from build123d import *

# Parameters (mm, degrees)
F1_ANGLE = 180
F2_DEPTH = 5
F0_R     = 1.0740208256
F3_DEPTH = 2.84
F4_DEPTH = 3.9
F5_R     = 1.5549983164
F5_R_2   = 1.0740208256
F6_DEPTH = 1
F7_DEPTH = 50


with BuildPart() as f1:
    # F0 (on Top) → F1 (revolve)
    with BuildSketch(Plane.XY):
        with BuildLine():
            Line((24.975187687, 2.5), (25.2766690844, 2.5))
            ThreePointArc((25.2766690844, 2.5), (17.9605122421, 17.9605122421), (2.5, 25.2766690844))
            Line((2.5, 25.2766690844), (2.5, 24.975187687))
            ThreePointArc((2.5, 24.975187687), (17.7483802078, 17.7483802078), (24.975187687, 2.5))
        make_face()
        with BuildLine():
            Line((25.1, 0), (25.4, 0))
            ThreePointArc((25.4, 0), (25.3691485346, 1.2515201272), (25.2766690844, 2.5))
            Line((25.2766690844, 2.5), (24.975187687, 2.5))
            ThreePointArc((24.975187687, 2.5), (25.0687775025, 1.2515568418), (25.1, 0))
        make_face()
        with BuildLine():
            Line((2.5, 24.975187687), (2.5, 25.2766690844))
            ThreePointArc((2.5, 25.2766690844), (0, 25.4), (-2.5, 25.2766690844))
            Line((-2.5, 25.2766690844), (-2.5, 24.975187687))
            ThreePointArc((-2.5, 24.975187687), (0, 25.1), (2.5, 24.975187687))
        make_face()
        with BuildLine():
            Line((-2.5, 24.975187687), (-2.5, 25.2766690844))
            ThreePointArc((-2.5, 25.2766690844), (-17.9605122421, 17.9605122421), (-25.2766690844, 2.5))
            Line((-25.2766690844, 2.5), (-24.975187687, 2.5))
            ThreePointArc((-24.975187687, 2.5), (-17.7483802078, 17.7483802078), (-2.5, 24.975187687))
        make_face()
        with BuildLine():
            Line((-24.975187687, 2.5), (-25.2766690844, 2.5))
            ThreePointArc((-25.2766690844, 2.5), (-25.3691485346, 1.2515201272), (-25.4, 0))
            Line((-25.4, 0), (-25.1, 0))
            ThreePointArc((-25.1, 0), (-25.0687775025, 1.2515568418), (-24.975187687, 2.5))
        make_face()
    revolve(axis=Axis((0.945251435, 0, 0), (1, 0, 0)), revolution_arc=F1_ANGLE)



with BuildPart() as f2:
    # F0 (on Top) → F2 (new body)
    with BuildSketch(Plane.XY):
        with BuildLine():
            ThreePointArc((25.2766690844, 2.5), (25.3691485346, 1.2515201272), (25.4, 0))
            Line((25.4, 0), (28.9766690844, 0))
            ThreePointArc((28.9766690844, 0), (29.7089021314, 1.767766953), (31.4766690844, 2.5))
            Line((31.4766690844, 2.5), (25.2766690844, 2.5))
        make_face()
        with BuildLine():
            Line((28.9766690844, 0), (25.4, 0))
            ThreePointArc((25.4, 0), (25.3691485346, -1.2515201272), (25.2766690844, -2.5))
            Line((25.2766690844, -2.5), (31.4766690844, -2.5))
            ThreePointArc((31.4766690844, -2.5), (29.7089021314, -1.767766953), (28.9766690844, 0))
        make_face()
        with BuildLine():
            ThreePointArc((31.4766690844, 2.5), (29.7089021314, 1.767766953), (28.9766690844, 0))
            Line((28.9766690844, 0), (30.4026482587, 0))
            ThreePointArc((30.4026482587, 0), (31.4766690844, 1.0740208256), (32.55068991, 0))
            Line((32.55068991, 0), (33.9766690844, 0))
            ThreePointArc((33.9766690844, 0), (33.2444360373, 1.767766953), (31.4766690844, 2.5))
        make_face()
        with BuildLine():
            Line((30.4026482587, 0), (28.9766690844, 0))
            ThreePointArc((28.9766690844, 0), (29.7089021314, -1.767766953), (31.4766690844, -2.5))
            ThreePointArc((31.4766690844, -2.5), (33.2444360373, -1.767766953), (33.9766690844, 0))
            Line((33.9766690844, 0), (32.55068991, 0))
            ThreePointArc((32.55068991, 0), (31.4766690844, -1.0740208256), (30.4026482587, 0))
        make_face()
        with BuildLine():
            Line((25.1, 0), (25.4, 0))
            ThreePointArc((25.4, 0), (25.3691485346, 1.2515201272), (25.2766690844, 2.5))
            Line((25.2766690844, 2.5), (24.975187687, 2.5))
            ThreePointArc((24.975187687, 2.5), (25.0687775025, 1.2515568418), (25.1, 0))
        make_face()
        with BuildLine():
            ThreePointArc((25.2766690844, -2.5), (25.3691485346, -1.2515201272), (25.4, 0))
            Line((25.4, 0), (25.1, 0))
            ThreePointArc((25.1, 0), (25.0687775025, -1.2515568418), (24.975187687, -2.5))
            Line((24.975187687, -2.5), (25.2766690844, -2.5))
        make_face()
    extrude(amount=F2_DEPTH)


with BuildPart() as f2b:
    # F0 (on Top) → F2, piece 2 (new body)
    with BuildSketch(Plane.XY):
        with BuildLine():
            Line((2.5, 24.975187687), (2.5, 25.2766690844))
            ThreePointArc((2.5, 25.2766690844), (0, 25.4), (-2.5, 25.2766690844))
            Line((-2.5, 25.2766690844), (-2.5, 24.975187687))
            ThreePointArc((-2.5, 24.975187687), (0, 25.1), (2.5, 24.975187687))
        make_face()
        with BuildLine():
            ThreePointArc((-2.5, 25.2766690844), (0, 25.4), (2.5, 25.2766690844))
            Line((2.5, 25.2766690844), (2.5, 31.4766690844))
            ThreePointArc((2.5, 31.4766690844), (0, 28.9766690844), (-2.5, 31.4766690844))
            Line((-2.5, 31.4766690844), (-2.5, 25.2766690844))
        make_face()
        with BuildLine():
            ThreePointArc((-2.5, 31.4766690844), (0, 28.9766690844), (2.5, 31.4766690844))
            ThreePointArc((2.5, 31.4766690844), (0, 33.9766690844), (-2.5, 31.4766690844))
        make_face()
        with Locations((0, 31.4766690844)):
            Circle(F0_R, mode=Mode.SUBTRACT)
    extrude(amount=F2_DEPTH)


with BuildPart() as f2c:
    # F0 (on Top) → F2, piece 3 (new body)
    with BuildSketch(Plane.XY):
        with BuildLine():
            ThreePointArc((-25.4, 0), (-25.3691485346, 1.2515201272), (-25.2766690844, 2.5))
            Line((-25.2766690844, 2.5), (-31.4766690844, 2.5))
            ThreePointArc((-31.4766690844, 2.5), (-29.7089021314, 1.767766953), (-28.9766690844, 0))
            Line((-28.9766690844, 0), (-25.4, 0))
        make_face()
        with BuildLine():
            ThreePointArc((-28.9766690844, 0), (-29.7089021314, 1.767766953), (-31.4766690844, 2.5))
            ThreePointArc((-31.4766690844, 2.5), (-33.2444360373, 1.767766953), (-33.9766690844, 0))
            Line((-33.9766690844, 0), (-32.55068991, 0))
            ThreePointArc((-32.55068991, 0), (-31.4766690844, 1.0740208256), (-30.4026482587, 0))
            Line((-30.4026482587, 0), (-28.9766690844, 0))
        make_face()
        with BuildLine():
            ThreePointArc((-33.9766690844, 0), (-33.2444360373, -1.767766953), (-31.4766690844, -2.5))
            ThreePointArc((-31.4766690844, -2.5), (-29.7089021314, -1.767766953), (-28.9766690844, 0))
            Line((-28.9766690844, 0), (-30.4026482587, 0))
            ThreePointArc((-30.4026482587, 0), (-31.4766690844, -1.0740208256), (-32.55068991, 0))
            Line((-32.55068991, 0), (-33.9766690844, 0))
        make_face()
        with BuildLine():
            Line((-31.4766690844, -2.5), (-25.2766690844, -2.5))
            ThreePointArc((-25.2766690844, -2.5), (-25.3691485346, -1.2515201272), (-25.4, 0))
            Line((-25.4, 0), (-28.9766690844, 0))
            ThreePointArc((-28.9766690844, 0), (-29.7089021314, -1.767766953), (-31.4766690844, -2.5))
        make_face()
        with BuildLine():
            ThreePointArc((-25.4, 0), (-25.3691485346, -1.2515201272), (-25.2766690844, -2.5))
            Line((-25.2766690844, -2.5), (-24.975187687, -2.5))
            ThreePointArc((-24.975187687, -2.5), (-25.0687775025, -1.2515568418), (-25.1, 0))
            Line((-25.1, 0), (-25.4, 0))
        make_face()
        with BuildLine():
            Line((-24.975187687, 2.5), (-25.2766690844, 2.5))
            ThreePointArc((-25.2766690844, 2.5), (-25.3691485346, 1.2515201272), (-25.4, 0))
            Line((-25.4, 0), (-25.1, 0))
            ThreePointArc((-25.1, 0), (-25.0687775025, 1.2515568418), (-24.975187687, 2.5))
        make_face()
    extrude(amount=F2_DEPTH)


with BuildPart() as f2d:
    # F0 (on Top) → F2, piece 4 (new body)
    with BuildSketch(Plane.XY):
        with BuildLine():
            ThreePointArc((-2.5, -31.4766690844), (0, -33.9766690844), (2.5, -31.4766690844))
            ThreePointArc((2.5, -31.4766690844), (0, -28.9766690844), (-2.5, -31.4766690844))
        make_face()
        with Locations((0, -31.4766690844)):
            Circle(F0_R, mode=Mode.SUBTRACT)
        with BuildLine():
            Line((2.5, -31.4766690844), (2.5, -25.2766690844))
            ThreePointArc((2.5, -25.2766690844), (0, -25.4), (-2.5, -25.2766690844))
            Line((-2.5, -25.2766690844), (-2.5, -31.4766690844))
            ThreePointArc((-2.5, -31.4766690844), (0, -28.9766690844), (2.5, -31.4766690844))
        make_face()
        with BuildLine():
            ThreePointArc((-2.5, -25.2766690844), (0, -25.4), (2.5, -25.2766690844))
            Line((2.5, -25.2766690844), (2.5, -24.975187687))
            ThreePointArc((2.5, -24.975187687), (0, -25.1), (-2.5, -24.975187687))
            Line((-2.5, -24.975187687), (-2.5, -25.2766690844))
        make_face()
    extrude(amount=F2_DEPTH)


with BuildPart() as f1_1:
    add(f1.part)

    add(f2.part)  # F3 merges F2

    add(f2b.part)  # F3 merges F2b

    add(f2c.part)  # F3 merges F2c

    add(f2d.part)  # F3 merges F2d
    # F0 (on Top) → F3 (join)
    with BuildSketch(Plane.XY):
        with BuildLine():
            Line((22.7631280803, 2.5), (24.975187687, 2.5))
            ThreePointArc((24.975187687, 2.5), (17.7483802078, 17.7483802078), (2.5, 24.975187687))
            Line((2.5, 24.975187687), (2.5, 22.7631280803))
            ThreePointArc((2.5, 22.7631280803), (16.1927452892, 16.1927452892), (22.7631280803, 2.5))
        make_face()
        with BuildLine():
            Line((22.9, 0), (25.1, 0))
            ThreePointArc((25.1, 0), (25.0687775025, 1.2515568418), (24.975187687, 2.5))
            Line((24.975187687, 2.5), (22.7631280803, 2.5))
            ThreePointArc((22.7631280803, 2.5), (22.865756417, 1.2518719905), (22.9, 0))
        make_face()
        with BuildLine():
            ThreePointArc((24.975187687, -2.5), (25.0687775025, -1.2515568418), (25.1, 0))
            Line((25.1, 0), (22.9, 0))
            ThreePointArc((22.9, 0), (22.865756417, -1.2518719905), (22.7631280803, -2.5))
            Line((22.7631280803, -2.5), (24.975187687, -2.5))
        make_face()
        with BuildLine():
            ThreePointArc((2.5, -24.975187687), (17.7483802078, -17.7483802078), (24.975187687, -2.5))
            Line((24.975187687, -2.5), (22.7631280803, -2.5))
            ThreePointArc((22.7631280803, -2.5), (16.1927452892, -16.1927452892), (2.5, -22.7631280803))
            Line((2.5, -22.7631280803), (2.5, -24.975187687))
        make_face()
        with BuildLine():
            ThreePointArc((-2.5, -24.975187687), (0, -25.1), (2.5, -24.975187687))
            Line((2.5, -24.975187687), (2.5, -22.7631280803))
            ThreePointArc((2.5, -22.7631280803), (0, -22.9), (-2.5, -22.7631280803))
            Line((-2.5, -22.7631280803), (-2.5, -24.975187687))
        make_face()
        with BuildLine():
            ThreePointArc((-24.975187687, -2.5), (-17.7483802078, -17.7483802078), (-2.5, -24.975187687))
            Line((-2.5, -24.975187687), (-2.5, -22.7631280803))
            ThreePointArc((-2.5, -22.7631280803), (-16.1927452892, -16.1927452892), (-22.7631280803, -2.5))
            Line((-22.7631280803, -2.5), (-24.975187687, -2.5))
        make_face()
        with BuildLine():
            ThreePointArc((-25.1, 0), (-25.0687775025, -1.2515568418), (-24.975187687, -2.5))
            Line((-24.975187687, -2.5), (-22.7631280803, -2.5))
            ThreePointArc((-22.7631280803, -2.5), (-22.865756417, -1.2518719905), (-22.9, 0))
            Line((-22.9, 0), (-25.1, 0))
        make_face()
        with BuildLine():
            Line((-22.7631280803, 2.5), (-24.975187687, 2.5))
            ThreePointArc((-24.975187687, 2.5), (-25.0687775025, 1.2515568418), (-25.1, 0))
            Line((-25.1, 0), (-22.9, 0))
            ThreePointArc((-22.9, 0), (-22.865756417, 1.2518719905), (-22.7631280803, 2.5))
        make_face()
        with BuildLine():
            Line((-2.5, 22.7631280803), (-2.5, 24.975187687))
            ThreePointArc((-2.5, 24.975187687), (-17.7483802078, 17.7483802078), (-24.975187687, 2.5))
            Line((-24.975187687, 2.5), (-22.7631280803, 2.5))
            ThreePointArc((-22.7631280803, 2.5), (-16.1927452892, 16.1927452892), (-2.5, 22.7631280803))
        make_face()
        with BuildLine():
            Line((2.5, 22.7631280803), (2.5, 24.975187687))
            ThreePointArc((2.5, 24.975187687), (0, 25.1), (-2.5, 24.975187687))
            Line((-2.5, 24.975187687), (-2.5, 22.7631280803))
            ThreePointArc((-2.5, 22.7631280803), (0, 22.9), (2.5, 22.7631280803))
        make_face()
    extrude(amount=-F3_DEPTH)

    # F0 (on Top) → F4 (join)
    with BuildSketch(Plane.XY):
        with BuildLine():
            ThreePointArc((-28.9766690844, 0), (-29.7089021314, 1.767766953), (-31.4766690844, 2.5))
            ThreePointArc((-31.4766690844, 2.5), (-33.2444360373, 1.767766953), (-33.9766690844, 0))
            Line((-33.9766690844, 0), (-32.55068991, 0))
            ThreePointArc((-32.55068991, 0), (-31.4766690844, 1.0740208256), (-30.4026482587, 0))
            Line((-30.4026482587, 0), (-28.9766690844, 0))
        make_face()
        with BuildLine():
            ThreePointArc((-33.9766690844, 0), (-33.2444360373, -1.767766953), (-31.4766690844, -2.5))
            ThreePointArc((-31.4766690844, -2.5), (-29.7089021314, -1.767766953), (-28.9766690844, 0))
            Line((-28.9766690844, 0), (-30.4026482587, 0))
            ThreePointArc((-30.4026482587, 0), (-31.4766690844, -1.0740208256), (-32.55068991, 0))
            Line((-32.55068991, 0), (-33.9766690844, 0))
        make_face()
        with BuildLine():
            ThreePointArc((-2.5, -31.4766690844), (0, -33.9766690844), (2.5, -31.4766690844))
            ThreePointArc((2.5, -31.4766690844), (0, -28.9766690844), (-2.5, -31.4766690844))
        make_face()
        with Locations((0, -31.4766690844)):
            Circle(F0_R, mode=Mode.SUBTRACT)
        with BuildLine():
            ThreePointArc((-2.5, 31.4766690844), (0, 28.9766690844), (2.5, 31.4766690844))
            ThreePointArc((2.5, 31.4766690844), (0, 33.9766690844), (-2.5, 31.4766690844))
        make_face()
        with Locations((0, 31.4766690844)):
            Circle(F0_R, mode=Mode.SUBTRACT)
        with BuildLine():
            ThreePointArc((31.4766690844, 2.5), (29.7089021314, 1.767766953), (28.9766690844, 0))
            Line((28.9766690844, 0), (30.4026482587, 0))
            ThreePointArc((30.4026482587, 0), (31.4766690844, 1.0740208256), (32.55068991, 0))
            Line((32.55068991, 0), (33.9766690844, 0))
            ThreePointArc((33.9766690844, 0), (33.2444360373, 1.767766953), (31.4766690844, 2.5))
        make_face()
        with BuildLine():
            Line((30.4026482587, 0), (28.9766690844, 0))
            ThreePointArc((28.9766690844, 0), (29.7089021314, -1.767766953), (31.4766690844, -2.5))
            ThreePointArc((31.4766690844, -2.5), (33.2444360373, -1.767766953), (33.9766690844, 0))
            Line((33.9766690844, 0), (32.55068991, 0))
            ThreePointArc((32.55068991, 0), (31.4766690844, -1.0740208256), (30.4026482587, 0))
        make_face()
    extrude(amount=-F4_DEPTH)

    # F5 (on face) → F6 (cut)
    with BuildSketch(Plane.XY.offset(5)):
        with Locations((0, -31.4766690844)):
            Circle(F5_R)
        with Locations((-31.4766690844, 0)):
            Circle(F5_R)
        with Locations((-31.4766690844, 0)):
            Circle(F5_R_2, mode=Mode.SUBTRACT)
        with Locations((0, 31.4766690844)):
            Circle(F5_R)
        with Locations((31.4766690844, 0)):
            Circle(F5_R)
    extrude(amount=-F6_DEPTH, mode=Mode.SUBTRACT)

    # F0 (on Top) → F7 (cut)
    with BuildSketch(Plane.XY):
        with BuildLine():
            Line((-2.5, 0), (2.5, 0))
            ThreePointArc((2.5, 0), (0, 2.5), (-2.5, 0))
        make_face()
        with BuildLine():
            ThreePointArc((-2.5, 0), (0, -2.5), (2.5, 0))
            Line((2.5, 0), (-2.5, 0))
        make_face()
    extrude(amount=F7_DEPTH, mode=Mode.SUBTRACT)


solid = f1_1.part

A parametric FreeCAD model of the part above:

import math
import FreeCAD as App
import Part
import Sketcher
from FreeCAD import Vector

doc = App.newDocument("Part")
body = doc.addObject("PartDesign::Body", "Body")

# Sketch on XY plane
sketch1 = doc.addObject("Sketcher::SketchObject", "Sketch")
body.addObject(sketch1)
sketch1.AttachmentSupport = (doc.XY_Plane, [""])
sketch1.MapMode = "FlatFace"
sketch1.addGeometry([
    Part.ArcOfCircle(Part.Circle(Vector(0, 0, 0), Vector(0, 0, 1), 25.4), math.radians(6), math.radians(84)),  # 0
    Part.ArcOfCircle(Part.Circle(Vector(0, 0, 0), Vector(0, 0, 1), 25.4), math.radians(84.35), math.radians(95.65)),  # 1
    Part.ArcOfCircle(Part.Circle(Vector(0, 0, 0), Vector(0, 0, 1), 25.4), math.radians(96), math.radians(174)),  # 2
    Part.ArcOfCircle(Part.Circle(Vector(0, 0, 0), Vector(0, 0, 1), 25.4), math.radians(174.35), math.radians(180)),  # 3
    Part.LineSegment(Vector(-25.4, 0, 0), Vector(-25.1, 0, 0)),  # 4
    Part.ArcOfCircle(Part.Circle(Vector(0, 0, 0), Vector(0, 0, 1), 25.1), math.radians(174.28), math.radians(180)),  # 5
    Part.ArcOfCircle(Part.Circle(Vector(0, 0, 0), Vector(0, 0, 1), 25.1), math.radians(96), math.radians(174)),  # 6
    Part.ArcOfCircle(Part.Circle(Vector(0, 0, 0), Vector(0, 0, 1), 25.1), math.radians(84.28), math.radians(95.72)),  # 7
    Part.ArcOfCircle(Part.Circle(Vector(0, 0, 0), Vector(0, 0, 1), 25.1), math.radians(6), math.radians(84)),  # 8
    Part.ArcOfCircle(Part.Circle(Vector(0, 0, 0), Vector(0, 0, 1), 25.1), math.radians(0), math.radians(5.72)),  # 9
    Part.LineSegment(Vector(25.1, 0, 0), Vector(25.4, 0, 0)),  # 10
    Part.ArcOfCircle(Part.Circle(Vector(0, 0, 0), Vector(0, 0, 1), 25.4), math.radians(0), math.radians(5.65)),  # 11
], False)
sketch1.addConstraint([
    Sketcher.Constraint("Tangent", 0, 2, 1, 1),
    Sketcher.Constraint("Tangent", 1, 2, 2, 1),
    Sketcher.Constraint("Tangent", 2, 2, 3, 1),
    Sketcher.Constraint("Coincident", 3, 2, 4, 1),
    Sketcher.Constraint("Coincident", 4, 2, 5, 2),
    Sketcher.Constraint("Tangent", 5, 1, 6, 2),
    Sketcher.Constraint("Tangent", 6, 1, 7, 2),
    Sketcher.Constraint("Tangent", 7, 1, 8, 2),
    Sketcher.Constraint("Tangent", 8, 1, 9, 2),
    Sketcher.Constraint("Coincident", 9, 1, 10, 1),
    Sketcher.Constraint("Coincident", 10, 2, 11, 1),
    Sketcher.Constraint("Tangent", 11, 2, 0, 1),
    Sketcher.Constraint("Horizontal", 4),
    Sketcher.Constraint("Horizontal", 10),
    Sketcher.Constraint("Coincident", 0, 3, -1, 1),
    Sketcher.Constraint("Coincident", 2, 3, -1, 1),
    Sketcher.Constraint("Coincident", 5, 3, -1, 1),
    Sketcher.Constraint("Coincident", 7, 3, -1, 1),
    Sketcher.Constraint("Coincident", 9, 3, -1, 1),
    Sketcher.Constraint("Equal", 2, 3),
    Sketcher.Constraint("Equal", 3, 11),
    Sketcher.Constraint("PointOnObject", 3, 2, -1),
    Sketcher.Constraint("PointOnObject", 9, 1, -1),
    Sketcher.Constraint("Horizontal", 0, 2, 1, 2),
    Sketcher.Constraint("Horizontal", 2, 2, 5, 1),
    Sketcher.Constraint("Horizontal", 6, 1, 7, 1),
    Sketcher.Constraint("Horizontal", 5, 1, 8, 1),
    Sketcher.Constraint("Horizontal", 8, 1, 11, 2),
    Sketcher.Constraint("Vertical", 1, 2, 6, 1),
    Sketcher.Constraint("Radius", 0, 25.4),
    Sketcher.Constraint("Radius", 5, 25.1),
    Sketcher.Constraint("DistanceX", 1, 2, 0, 2, 5.0),
    Sketcher.Constraint("DistanceY", -1, 1, 2, 2, 2.5),
])
revolution = doc.addObject("PartDesign::Revolution", "Revolution")
body.addObject(revolution)
revolution.Profile = sketch1
revolution.ReferenceAxis = (sketch1, ["H_Axis"])
revolution.Angle = 180
body2 = doc.addObject("PartDesign::Body", "Body001")

# Sketch on XY plane
sketch2 = doc.addObject("Sketcher::SketchObject", "Sketch001")
body2.addObject(sketch2)
sketch2.AttachmentSupport = (doc.getObject("XY_Plane001"), [""])
sketch2.MapMode = "FlatFace"
sketch2.addGeometry([
    Part.ArcOfCircle(Part.Circle(Vector(31.5, 0, 0), Vector(0, 0, 1), 2.5), math.radians(-90), math.radians(0)),  # 0
    Part.ArcOfCircle(Part.Circle(Vector(31.5, 0, 0), Vector(0, 0, 1), 2.5), math.radians(0), math.radians(90)),  # 1
    Part.LineSegment(Vector(31.5, 2.5, 0), Vector(25, 2.5, 0)),  # 2
    Part.ArcOfCircle(Part.Circle(Vector(0, 0, 0), Vector(0, 0, 1), 25.1), math.radians(0), math.radians(5.72)),  # 3
    Part.ArcOfCircle(Part.Circle(Vector(0, 0, 0), Vector(0, 0, 1), 25.1), math.radians(-5.72), math.radians(0)),  # 4
    Part.LineSegment(Vector(25, -2.5, 0), Vector(31.5, -2.5, 0)),  # 5
    Part.ArcOfCircle(Part.Circle(Vector(31.5, 0, 0), Vector(0, 0, 1), 1.1), math.radians(0), math.radians(180)),  # 6
    Part.ArcOfCircle(Part.Circle(Vector(31.5, 0, 0), Vector(0, 0, 1), 1.1), math.radians(180), math.radians(360)),  # 7
], False)
sketch2.addConstraint([
    Sketcher.Constraint("Tangent", 0, 2, 1, 1),
    Sketcher.Constraint("Tangent", 1, 2, 2, 1),
    Sketcher.Constraint("Coincident", 2, 2, 3, 2),
    Sketcher.Constraint("Tangent", 3, 1, 4, 2),
    Sketcher.Constraint("Coincident", 4, 1, 5, 1),
    Sketcher.Constraint("Tangent", 5, 2, 0, 1),
    Sketcher.Constraint("Tangent", 6, 1, 7, 2),
    Sketcher.Constraint("Coincident", 7, 1, 6, 2),
    Sketcher.Constraint("Horizontal", 2),
    Sketcher.Constraint("Horizontal", 5),
    Sketcher.Constraint("Coincident", 3, 3, -1, 1),
    Sketcher.Constraint("Coincident", 6, 3, 0, 3),
    Sketcher.Constraint("Equal", 0, 1),
    Sketcher.Constraint("Equal", 3, 4),
    Sketcher.Constraint("PointOnObject", 0, 3, -1),
    Sketcher.Constraint("PointOnObject", 0, 2, -1),
    Sketcher.Constraint("PointOnObject", 3, 1, -1),
    Sketcher.Constraint("PointOnObject", 6, 1, -1),
    Sketcher.Constraint("PointOnObject", 7, 1, -1),
    Sketcher.Constraint("Radius", 0, 2.5),
    Sketcher.Constraint("Radius", 3, 25.1),
    Sketcher.Constraint("Radius", 6, 1.074021),
    Sketcher.Constraint("DistanceX", 2, 2, 2, 1, 6.501481),
])
pad1 = doc.addObject("PartDesign::Pad", "Pad")
body2.addObject(pad1)
pad1.Profile = sketch2
pad1.Length = 5
body3 = doc.addObject("PartDesign::Body", "Body002")

# Sketch on XY plane
sketch3 = doc.addObject("Sketcher::SketchObject", "Sketch002")
body3.addObject(sketch3)
sketch3.AttachmentSupport = (doc.getObject("XY_Plane002"), [""])
sketch3.MapMode = "FlatFace"
sketch3.addGeometry([
    Part.LineSegment(Vector(2.5, 25, 0), Vector(2.5, 31.5, 0)),  # 0
    Part.ArcOfCircle(Part.Circle(Vector(0, 31.5, 0), Vector(0, 0, 1), 2.5), math.radians(0), math.radians(180)),  # 1
    Part.LineSegment(Vector(-2.5, 31.5, 0), Vector(-2.5, 25, 0)),  # 2
    Part.ArcOfCircle(Part.Circle(Vector(0, 0, 0), Vector(0, 0, 1), 25.1), math.radians(84.28), math.radians(95.72)),  # 3
    Part.Circle(Vector(0, 31.5, 0), Vector(0, 0, 1), 1.1),  # 4
], False)
sketch3.addConstraint([
    Sketcher.Constraint("Tangent", 0, 2, 1, 1),
    Sketcher.Constraint("Tangent", 1, 2, 2, 1),
    Sketcher.Constraint("Coincident", 2, 2, 3, 2),
    Sketcher.Constraint("Coincident", 3, 1, 0, 1),
    Sketcher.Constraint("Vertical", 0),
    Sketcher.Constraint("Vertical", 2),
    Sketcher.Constraint("Coincident", 3, 3, -1, 1),
    Sketcher.Constraint("Coincident", 4, 3, 1, 3),
    Sketcher.Constraint("PointOnObject", 1, 3, -2),
    Sketcher.Constraint("Radius", 1, 2.5),
    Sketcher.Constraint("Radius", 3, 25.1),
    Sketcher.Constraint("Diameter", 4, 2.148042),
    Sketcher.Constraint("DistanceY", 0, 1, 0, 2, 6.501481),
])
pad2 = doc.addObject("PartDesign::Pad", "Pad001")
body3.addObject(pad2)
pad2.Profile = sketch3
pad2.Length = 5
body4 = doc.addObject("PartDesign::Body", "Body003")

# Sketch on XY plane
sketch4 = doc.addObject("Sketcher::SketchObject", "Sketch003")
body4.addObject(sketch4)
sketch4.AttachmentSupport = (doc.getObject("XY_Plane003"), [""])
sketch4.MapMode = "FlatFace"
sketch4.addGeometry([
    Part.ArcOfCircle(Part.Circle(Vector(-31.5, 0, 0), Vector(0, 0, 1), 2.5), math.radians(90), math.radians(180)),  # 0
    Part.ArcOfCircle(Part.Circle(Vector(-31.5, 0, 0), Vector(0, 0, 1), 2.5), math.radians(180), math.radians(270)),  # 1
    Part.LineSegment(Vector(-31.5, -2.5, 0), Vector(-25, -2.5, 0)),  # 2
    Part.ArcOfCircle(Part.Circle(Vector(0, 0, 0), Vector(0, 0, 1), 25.1), math.radians(-180), math.radians(-174.28)),  # 3
    Part.ArcOfCircle(Part.Circle(Vector(0, 0, 0), Vector(0, 0, 1), 25.1), math.radians(174.28), math.radians(180)),  # 4
    Part.LineSegment(Vector(-25, 2.5, 0), Vector(-31.5, 2.5, 0)),  # 5
    Part.ArcOfCircle(Part.Circle(Vector(-31.5, 0, 0), Vector(0, 0, 1), 1.1), math.radians(0), math.radians(180)),  # 6
    Part.ArcOfCircle(Part.Circle(Vector(-31.5, 0, 0), Vector(0, 0, 1), 1.1), math.radians(180), math.radians(360)),  # 7
], False)
sketch4.addConstraint([
    Sketcher.Constraint("Tangent", 0, 2, 1, 1),
    Sketcher.Constraint("Tangent", 1, 2, 2, 1),
    Sketcher.Constraint("Coincident", 2, 2, 3, 2),
    Sketcher.Constraint("Tangent", 3, 1, 4, 2),
    Sketcher.Constraint("Coincident", 4, 1, 5, 1),
    Sketcher.Constraint("Tangent", 5, 2, 0, 1),
    Sketcher.Constraint("Tangent", 6, 1, 7, 2),
    Sketcher.Constraint("Coincident", 7, 1, 6, 2),
    Sketcher.Constraint("Horizontal", 2),
    Sketcher.Constraint("Horizontal", 5),
    Sketcher.Constraint("Coincident", 3, 3, -1, 1),
    Sketcher.Constraint("Coincident", 6, 3, 0, 3),
    Sketcher.Constraint("Equal", 0, 1),
    Sketcher.Constraint("Equal", 3, 4),
    Sketcher.Constraint("PointOnObject", 0, 3, -1),
    Sketcher.Constraint("PointOnObject", 0, 2, -1),
    Sketcher.Constraint("PointOnObject", 3, 1, -1),
    Sketcher.Constraint("PointOnObject", 6, 1, -1),
    Sketcher.Constraint("PointOnObject", 7, 1, -1),
    Sketcher.Constraint("Radius", 0, 2.5),
    Sketcher.Constraint("Radius", 3, 25.1),
    Sketcher.Constraint("Radius", 6, 1.074021),
    Sketcher.Constraint("DistanceX", 2, 1, 2, 2, 6.501481),
])
pad3 = doc.addObject("PartDesign::Pad", "Pad002")
body4.addObject(pad3)
pad3.Profile = sketch4
pad3.Length = 5
body5 = doc.addObject("PartDesign::Body", "Body004")

# Sketch on XY plane
sketch5 = doc.addObject("Sketcher::SketchObject", "Sketch004")
body5.addObject(sketch5)
sketch5.AttachmentSupport = (doc.getObject("XY_Plane004"), [""])
sketch5.MapMode = "FlatFace"
sketch5.addGeometry([
    Part.ArcOfCircle(Part.Circle(Vector(0, -31.5, 0), Vector(0, 0, 1), 2.5), math.radians(180), math.radians(360)),  # 0
    Part.LineSegment(Vector(2.5, -31.5, 0), Vector(2.5, -25, 0)),  # 1
    Part.ArcOfCircle(Part.Circle(Vector(0, 0, 0), Vector(0, 0, 1), 25.1), math.radians(-95.72), math.radians(-84.28)),  # 2
    Part.LineSegment(Vector(-2.5, -25, 0), Vector(-2.5, -31.5, 0)),  # 3
    Part.Circle(Vector(0, -31.5, 0), Vector(0, 0, 1), 1.1),  # 4
], False)
sketch5.addConstraint([
    Sketcher.Constraint("Tangent", 0, 2, 1, 1),
    Sketcher.Constraint("Coincident", 1, 2, 2, 2),
    Sketcher.Constraint("Coincident", 2, 1, 3, 1),
    Sketcher.Constraint("Tangent", 3, 2, 0, 1),
    Sketcher.Constraint("Vertical", 1),
    Sketcher.Constraint("Vertical", 3),
    Sketcher.Constraint("Coincident", 2, 3, -1, 1),
    Sketcher.Constraint("Coincident", 4, 3, 0, 3),
    Sketcher.Constraint("PointOnObject", 0, 3, -2),
    Sketcher.Constraint("Radius", 0, 2.5),
    Sketcher.Constraint("Radius", 2, 25.1),
    Sketcher.Constraint("Diameter", 4, 2.148042),
    Sketcher.Constraint("DistanceY", 1, 1, 1, 2, 6.501481),
])
pad4 = doc.addObject("PartDesign::Pad", "Pad003")
body5.addObject(pad4)
pad4.Profile = sketch5
pad4.Length = 5
body.AllowCompound = True
doc.recompute()

boolean = doc.addObject("PartDesign::Boolean", "Boolean")
body.addObject(boolean)
boolean.Type = "Fuse"
boolean.addObjects([body2])
doc.recompute()

boolean2 = doc.addObject("PartDesign::Boolean", "Boolean001")
body.addObject(boolean2)
boolean2.Type = "Fuse"
boolean2.addObjects([body3])
doc.recompute()

boolean3 = doc.addObject("PartDesign::Boolean", "Boolean002")
body.addObject(boolean3)
boolean3.Type = "Fuse"
boolean3.addObjects([body4])
doc.recompute()

boolean4 = doc.addObject("PartDesign::Boolean", "Boolean003")
body.addObject(boolean4)
boolean4.Type = "Fuse"
boolean4.addObjects([body5])

# Sketch on XY plane
sketch6 = doc.addObject("Sketcher::SketchObject", "Sketch005")
body.addObject(sketch6)
sketch6.AttachmentSupport = (doc.XY_Plane, [""])
sketch6.MapMode = "FlatFace"
sketch6.addGeometry([
    Part.ArcOfCircle(Part.Circle(Vector(0, 0, 0), Vector(0, 0, 1), 25.1), math.radians(6), math.radians(84)),  # 0
    Part.ArcOfCircle(Part.Circle(Vector(0, 0, 0), Vector(0, 0, 1), 25.1), math.radians(84.28), math.radians(95.72)),  # 1
    Part.ArcOfCircle(Part.Circle(Vector(0, 0, 0), Vector(0, 0, 1), 25.1), math.radians(96), math.radians(174)),  # 2
    Part.ArcOfCircle(Part.Circle(Vector(0, 0, 0), Vector(0, 0, 1), 25.1), math.radians(174.28), math.radians(180)),  # 3
    Part.ArcOfCircle(Part.Circle(Vector(0, 0, 0), Vector(0, 0, 1), 25.1), math.radians(-180), math.radians(-174.28)),  # 4
    Part.ArcOfCircle(Part.Circle(Vector(0, 0, 0), Vector(0, 0, 1), 25.1), math.radians(-174), math.radians(-96)),  # 5
    Part.ArcOfCircle(Part.Circle(Vector(0, 0, 0), Vector(0, 0, 1), 25.1), math.radians(-95.72), math.radians(-84.28)),  # 6
    Part.ArcOfCircle(Part.Circle(Vector(0, 0, 0), Vector(0, 0, 1), 25.1), math.radians(-84), math.radians(-6)),  # 7
    Part.ArcOfCircle(Part.Circle(Vector(0, 0, 0), Vector(0, 0, 1), 25.1), math.radians(-5.72), math.radians(0)),  # 8
    Part.ArcOfCircle(Part.Circle(Vector(0, 0, 0), Vector(0, 0, 1), 25.1), math.radians(0), math.radians(5.72)),  # 9
    Part.ArcOfCircle(Part.Circle(Vector(0, 0, 0), Vector(0, 0, 1), 22.9), math.radians(6), math.radians(84)),  # 10
    Part.ArcOfCircle(Part.Circle(Vector(0, 0, 0), Vector(0, 0, 1), 22.9), math.radians(0), math.radians(6.27)),  # 11
    Part.ArcOfCircle(Part.Circle(Vector(0, 0, 0), Vector(0, 0, 1), 22.9), math.radians(-6.27), math.radians(0)),  # 12
    Part.ArcOfCircle(Part.Circle(Vector(0, 0, 0), Vector(0, 0, 1), 22.9), math.radians(-84), math.radians(-6)),  # 13
    Part.ArcOfCircle(Part.Circle(Vector(0, 0, 0), Vector(0, 0, 1), 22.9), math.radians(-96.27), math.radians(-83.73)),  # 14
    Part.ArcOfCircle(Part.Circle(Vector(0, 0, 0), Vector(0, 0, 1), 22.9), math.radians(-174), math.radians(-96)),  # 15
    Part.ArcOfCircle(Part.Circle(Vector(0, 0, 0), Vector(0, 0, 1), 22.9), math.radians(180), math.radians(186.27)),  # 16
    Part.ArcOfCircle(Part.Circle(Vector(0, 0, 0), Vector(0, 0, 1), 22.9), math.radians(173.73), math.radians(180)),  # 17
    Part.ArcOfCircle(Part.Circle(Vector(0, 0, 0), Vector(0, 0, 1), 22.9), math.radians(96), math.radians(174)),  # 18
    Part.ArcOfCircle(Part.Circle(Vector(0, 0, 0), Vector(0, 0, 1), 22.9), math.radians(83.73), math.radians(96.27)),  # 19
], False)
sketch6.addConstraint([
    Sketcher.Constraint("Tangent", 0, 2, 1, 1),
    Sketcher.Constraint("Tangent", 1, 2, 2, 1),
    Sketcher.Constraint("Tangent", 2, 2, 3, 1),
    Sketcher.Constraint("Tangent", 3, 2, 4, 1),
    Sketcher.Constraint("Tangent", 4, 2, 5, 1),
    Sketcher.Constraint("Tangent", 5, 2, 6, 1),
    Sketcher.Constraint("Tangent", 6, 2, 7, 1),
    Sketcher.Constraint("Tangent", 7, 2, 8, 1),
    Sketcher.Constraint("Tangent", 8, 2, 9, 1),
    Sketcher.Constraint("Tangent", 9, 2, 0, 1),
    Sketcher.Constraint("Tangent", 10, 1, 11, 2),
    Sketcher.Constraint("Tangent", 11, 1, 12, 2),
    Sketcher.Constraint("Tangent", 12, 1, 13, 2),
    Sketcher.Constraint("Tangent", 13, 1, 14, 2),
    Sketcher.Constraint("Tangent", 14, 1, 15, 2),
    Sketcher.Constraint("Tangent", 15, 1, 16, 2),
    Sketcher.Constraint("Tangent", 16, 1, 17, 2),
    Sketcher.Constraint("Tangent", 17, 1, 18, 2),
    Sketcher.Constraint("Tangent", 18, 1, 19, 2),
    Sketcher.Constraint("Tangent", 19, 1, 10, 2),
    Sketcher.Constraint("Coincident", 0, 3, -1, 1),
    Sketcher.Constraint("Coincident", 2, 3, -1, 1),
    Sketcher.Constraint("Coincident", 4, 3, -1, 1),
    Sketcher.Constraint("Coincident", 6, 3, -1, 1),
    Sketcher.Constraint("Coincident", 10, 3, -1, 1),
    Sketcher.Constraint("Coincident", 12, 3, -1, 1),
    Sketcher.Constraint("Coincident", 14, 3, -1, 1),
    Sketcher.Constraint("Coincident", 16, 3, -1, 1),
    Sketcher.Constraint("Equal", 6, 7),
    Sketcher.Constraint("Equal", 16, 17),
    Sketcher.Constraint("PointOnObject", 3, 2, -1),
    Sketcher.Constraint("PointOnObject", 8, 2, -1),
    Sketcher.Constraint("PointOnObject", 11, 1, -1),
    Sketcher.Constraint("PointOnObject", 16, 1, -1),
    Sketcher.Constraint("Horizontal", 0, 2, 1, 2),
    Sketcher.Constraint("Horizontal", 5, 2, 6, 2),
    Sketcher.Constraint("Horizontal", 4, 2, 7, 2),
    Sketcher.Constraint("Horizontal", 2, 2, 9, 2),
    Sketcher.Constraint("Horizontal", 9, 2, 10, 1),
    Sketcher.Constraint("Horizontal", 7, 2, 12, 1),
    Sketcher.Constraint("Horizontal", 13, 1, 14, 1),
    Sketcher.Constraint("Horizontal", 12, 1, 15, 1),
    Sketcher.Constraint("Horizontal", 10, 1, 17, 1),
    Sketcher.Constraint("Horizontal", 18, 1, 19, 1),
    Sketcher.Constraint("Vertical", 2, 2, 4, 2),
    Sketcher.Constraint("Vertical", 1, 2, 5, 2),
    Sketcher.Constraint("Vertical", 6, 2, 13, 1),
    Sketcher.Constraint("Vertical", 14, 1, 18, 1),
    Sketcher.Constraint("Radius", 0, 25.1),
    Sketcher.Constraint("Radius", 10, 22.9),
    Sketcher.Constraint("DistanceX", 1, 2, 0, 2, 5.0),
    Sketcher.Constraint("DistanceY", 4, 2, 2, 2, 5.0),
])
pad5 = doc.addObject("PartDesign::Pad", "Pad004")
body.addObject(pad5)
pad5.Profile = sketch6
pad5.Length = 2.84
pad5.Reversed = True

# Sketch on XY plane
sketch7 = doc.addObject("Sketcher::SketchObject", "Sketch006")
body.addObject(sketch7)
sketch7.AttachmentSupport = (doc.XY_Plane, [""])
sketch7.MapMode = "FlatFace"
sketch7.addGeometry([
    Part.ArcOfCircle(Part.Circle(Vector(-31.5, 0, 0), Vector(0, 0, 1), 2.5), math.radians(0), math.radians(90)),  # 0
    Part.ArcOfCircle(Part.Circle(Vector(-31.5, 0, 0), Vector(0, 0, 1), 2.5), math.radians(90), math.radians(180)),  # 1
    Part.ArcOfCircle(Part.Circle(Vector(-31.5, 0, 0), Vector(0, 0, 1), 2.5), math.radians(180), math.radians(270)),  # 2
    Part.ArcOfCircle(Part.Circle(Vector(-31.5, 0, 0), Vector(0, 0, 1), 2.5), math.radians(-90), math.radians(0)),  # 3
    Part.ArcOfCircle(Part.Circle(Vector(-31.5, 0, 0), Vector(0, 0, 1), 1.1), math.radians(0), math.radians(180)),  # 4
    Part.ArcOfCircle(Part.Circle(Vector(-31.5, 0, 0), Vector(0, 0, 1), 1.1), math.radians(180), math.radians(360)),  # 5
    Part.Circle(Vector(0, -31.5, 0), Vector(0, 0, 1), 2.5),  # 6
    Part.Circle(Vector(0, -31.5, 0), Vector(0, 0, 1), 1.1),  # 7
    Part.Circle(Vector(0, 31.5, 0), Vector(0, 0, 1), 2.5),  # 8
    Part.Circle(Vector(0, 31.5, 0), Vector(0, 0, 1), 1.1),  # 9
    Part.ArcOfCircle(Part.Circle(Vector(31.5, 0, 0), Vector(0, 0, 1), 2.5), math.radians(90), math.radians(180)),  # 10
    Part.ArcOfCircle(Part.Circle(Vector(31.5, 0, 0), Vector(0, 0, 1), 2.5), math.radians(180), math.radians(270)),  # 11
    Part.ArcOfCircle(Part.Circle(Vector(31.5, 0, 0), Vector(0, 0, 1), 2.5), math.radians(-90), math.radians(0)),  # 12
    Part.ArcOfCircle(Part.Circle(Vector(31.5, 0, 0), Vector(0, 0, 1), 2.5), math.radians(0), math.radians(90)),  # 13
    Part.ArcOfCircle(Part.Circle(Vector(31.5, 0, 0), Vector(0, 0, 1), 1.1), math.radians(0), math.radians(180)),  # 14
    Part.ArcOfCircle(Part.Circle(Vector(31.5, 0, 0), Vector(0, 0, 1), 1.1), math.radians(180), math.radians(360)),  # 15
], False)
sketch7.addConstraint([
    Sketcher.Constraint("Tangent", 0, 2, 1, 1),
    Sketcher.Constraint("Tangent", 1, 2, 2, 1),
    Sketcher.Constraint("Tangent", 2, 2, 3, 1),
    Sketcher.Constraint("Tangent", 3, 2, 0, 1),
    Sketcher.Constraint("Tangent", 4, 1, 5, 2),
    Sketcher.Constraint("Coincident", 5, 1, 4, 2),
    Sketcher.Constraint("Tangent", 10, 2, 11, 1),
    Sketcher.Constraint("Tangent", 11, 2, 12, 1),
    Sketcher.Constraint("Tangent", 12, 2, 13, 1),
    Sketcher.Constraint("Tangent", 13, 2, 10, 1),
    Sketcher.Constraint("Tangent", 14, 1, 15, 2),
    Sketcher.Constraint("Coincident", 15, 1, 14, 2),
    Sketcher.Constraint("Coincident", 4, 3, 0, 3),
    Sketcher.Constraint("Coincident", 7, 3, 6, 3),
    Sketcher.Constraint("Coincident", 9, 3, 8, 3),
    Sketcher.Constraint("Coincident", 14, 3, 10, 3),
    Sketcher.Constraint("Equal", 0, 1),
    Sketcher.Constraint("Equal", 3, 6),
    Sketcher.Constraint("Equal", 5, 7),
    Sketcher.Constraint("Equal", 6, 8),
    Sketcher.Constraint("Equal", 7, 9),
    Sketcher.Constraint("Equal", 8, 10),
    Sketcher.Constraint("Equal", 10, 11),
    Sketcher.Constraint("Equal", 9, 14),
    Sketcher.Constraint("Symmetric", 6, 3, 8, 3, -1, 1),
    Sketcher.Constraint("Symmetric", 0, 3, 10, 3, -1, 1),
    Sketcher.Constraint("Symmetric", 2, 2, 11, 2, -2),
    Sketcher.Constraint("PointOnObject", 6, 3, -2),
    Sketcher.Constraint("PointOnObject", 1, 2, -1),
    Sketcher.Constraint("PointOnObject", 3, 2, -1),
    Sketcher.Constraint("PointOnObject", 4, 1, -1),
    Sketcher.Constraint("PointOnObject", 5, 1, -1),
    Sketcher.Constraint("PointOnObject", 10, 2, -1),
    Sketcher.Constraint("PointOnObject", 12, 2, -1),
    Sketcher.Constraint("PointOnObject", 14, 1, -1),
    Sketcher.Constraint("PointOnObject", 15, 1, -1),
    Sketcher.Constraint("Vertical", 5, 3, 0, 2),
    Sketcher.Constraint("Vertical", 0, 2, 2, 2),
    Sketcher.Constraint("Vertical", 11, 2, 13, 2),
    Sketcher.Constraint("Diameter", 6, 5.0),
    Sketcher.Constraint("Diameter", 7, 2.148042),
    Sketcher.Constraint("DistanceX", 0, 3, -1, 1, 31.476669),
    Sketcher.Constraint("DistanceY", 6, 3, -1, 1, 31.476669),
])
pad6 = doc.addObject("PartDesign::Pad", "Pad005")
body.addObject(pad6)
pad6.Profile = sketch7
pad6.Length = 3.9
pad6.Reversed = True

# Sketch on XY plane
sketch8 = doc.addObject("Sketcher::SketchObject", "Sketch007")
body.addObject(sketch8)
sketch8.AttachmentSupport = (doc.XY_Plane, [""])
sketch8.MapMode = "FlatFace"
sketch8.AttachmentOffset = App.Placement(Vector(0, 0, 5), App.Rotation())
sketch8.addGeometry([
    Part.Circle(Vector(0, -31.5, 0), Vector(0, 0, 1), 1.6),  # 0
    Part.Circle(Vector(-31.5, 0, 0), Vector(0, 0, 1), 1.6),  # 1
    Part.Circle(Vector(-31.5, 0, 0), Vector(0, 0, 1), 1.1),  # 2
    Part.Circle(Vector(0, 31.5, 0), Vector(0, 0, 1), 1.6),  # 3
    Part.Circle(Vector(31.5, 0, 0), Vector(0, 0, 1), 1.6),  # 4
], False)
sketch8.addConstraint([
    Sketcher.Constraint("Coincident", 2, 3, 1, 3),
    Sketcher.Constraint("Equal", 0, 1),
    Sketcher.Constraint("Equal", 1, 3),
    Sketcher.Constraint("Equal", 3, 4),
    Sketcher.Constraint("Symmetric", 0, 3, 3, 3, -1, 1),
    Sketcher.Constraint("Symmetric", 1, 3, 4, 3, -1, 1),
    Sketcher.Constraint("PointOnObject", 0, 3, -2),
    Sketcher.Constraint("PointOnObject", 1, 3, -1),
    Sketcher.Constraint("Diameter", 2, 2.148042),
    Sketcher.Constraint("Diameter", 0, 3.109997),
    Sketcher.Constraint("DistanceY", 0, 3, -1, 1, 31.476669),
    Sketcher.Constraint("DistanceX", 1, 3, -1, 1, 31.476669),
])
pocket1 = doc.addObject("PartDesign::Pocket", "Pocket")
body.addObject(pocket1)
pocket1.Profile = sketch8
pocket1.Length = 1

# Sketch on XY plane
sketch9 = doc.addObject("Sketcher::SketchObject", "Sketch008")
body.addObject(sketch9)
sketch9.AttachmentSupport = (doc.XY_Plane, [""])
sketch9.MapMode = "FlatFace"
sketch9.addGeometry(Part.Circle(Vector(0, 0, 0), Vector(0, 0, 1), 2.5), False)
sketch9.addConstraint([
    Sketcher.Constraint("Coincident", 0, 3, -1, 1),
    Sketcher.Constraint("Diameter", 0, 5.0),
])
pocket2 = doc.addObject("PartDesign::Pocket", "Pocket001")
body.addObject(pocket2)
pocket2.Profile = sketch9
pocket2.Length = 50
pocket2.Reversed = True

doc.recompute()
